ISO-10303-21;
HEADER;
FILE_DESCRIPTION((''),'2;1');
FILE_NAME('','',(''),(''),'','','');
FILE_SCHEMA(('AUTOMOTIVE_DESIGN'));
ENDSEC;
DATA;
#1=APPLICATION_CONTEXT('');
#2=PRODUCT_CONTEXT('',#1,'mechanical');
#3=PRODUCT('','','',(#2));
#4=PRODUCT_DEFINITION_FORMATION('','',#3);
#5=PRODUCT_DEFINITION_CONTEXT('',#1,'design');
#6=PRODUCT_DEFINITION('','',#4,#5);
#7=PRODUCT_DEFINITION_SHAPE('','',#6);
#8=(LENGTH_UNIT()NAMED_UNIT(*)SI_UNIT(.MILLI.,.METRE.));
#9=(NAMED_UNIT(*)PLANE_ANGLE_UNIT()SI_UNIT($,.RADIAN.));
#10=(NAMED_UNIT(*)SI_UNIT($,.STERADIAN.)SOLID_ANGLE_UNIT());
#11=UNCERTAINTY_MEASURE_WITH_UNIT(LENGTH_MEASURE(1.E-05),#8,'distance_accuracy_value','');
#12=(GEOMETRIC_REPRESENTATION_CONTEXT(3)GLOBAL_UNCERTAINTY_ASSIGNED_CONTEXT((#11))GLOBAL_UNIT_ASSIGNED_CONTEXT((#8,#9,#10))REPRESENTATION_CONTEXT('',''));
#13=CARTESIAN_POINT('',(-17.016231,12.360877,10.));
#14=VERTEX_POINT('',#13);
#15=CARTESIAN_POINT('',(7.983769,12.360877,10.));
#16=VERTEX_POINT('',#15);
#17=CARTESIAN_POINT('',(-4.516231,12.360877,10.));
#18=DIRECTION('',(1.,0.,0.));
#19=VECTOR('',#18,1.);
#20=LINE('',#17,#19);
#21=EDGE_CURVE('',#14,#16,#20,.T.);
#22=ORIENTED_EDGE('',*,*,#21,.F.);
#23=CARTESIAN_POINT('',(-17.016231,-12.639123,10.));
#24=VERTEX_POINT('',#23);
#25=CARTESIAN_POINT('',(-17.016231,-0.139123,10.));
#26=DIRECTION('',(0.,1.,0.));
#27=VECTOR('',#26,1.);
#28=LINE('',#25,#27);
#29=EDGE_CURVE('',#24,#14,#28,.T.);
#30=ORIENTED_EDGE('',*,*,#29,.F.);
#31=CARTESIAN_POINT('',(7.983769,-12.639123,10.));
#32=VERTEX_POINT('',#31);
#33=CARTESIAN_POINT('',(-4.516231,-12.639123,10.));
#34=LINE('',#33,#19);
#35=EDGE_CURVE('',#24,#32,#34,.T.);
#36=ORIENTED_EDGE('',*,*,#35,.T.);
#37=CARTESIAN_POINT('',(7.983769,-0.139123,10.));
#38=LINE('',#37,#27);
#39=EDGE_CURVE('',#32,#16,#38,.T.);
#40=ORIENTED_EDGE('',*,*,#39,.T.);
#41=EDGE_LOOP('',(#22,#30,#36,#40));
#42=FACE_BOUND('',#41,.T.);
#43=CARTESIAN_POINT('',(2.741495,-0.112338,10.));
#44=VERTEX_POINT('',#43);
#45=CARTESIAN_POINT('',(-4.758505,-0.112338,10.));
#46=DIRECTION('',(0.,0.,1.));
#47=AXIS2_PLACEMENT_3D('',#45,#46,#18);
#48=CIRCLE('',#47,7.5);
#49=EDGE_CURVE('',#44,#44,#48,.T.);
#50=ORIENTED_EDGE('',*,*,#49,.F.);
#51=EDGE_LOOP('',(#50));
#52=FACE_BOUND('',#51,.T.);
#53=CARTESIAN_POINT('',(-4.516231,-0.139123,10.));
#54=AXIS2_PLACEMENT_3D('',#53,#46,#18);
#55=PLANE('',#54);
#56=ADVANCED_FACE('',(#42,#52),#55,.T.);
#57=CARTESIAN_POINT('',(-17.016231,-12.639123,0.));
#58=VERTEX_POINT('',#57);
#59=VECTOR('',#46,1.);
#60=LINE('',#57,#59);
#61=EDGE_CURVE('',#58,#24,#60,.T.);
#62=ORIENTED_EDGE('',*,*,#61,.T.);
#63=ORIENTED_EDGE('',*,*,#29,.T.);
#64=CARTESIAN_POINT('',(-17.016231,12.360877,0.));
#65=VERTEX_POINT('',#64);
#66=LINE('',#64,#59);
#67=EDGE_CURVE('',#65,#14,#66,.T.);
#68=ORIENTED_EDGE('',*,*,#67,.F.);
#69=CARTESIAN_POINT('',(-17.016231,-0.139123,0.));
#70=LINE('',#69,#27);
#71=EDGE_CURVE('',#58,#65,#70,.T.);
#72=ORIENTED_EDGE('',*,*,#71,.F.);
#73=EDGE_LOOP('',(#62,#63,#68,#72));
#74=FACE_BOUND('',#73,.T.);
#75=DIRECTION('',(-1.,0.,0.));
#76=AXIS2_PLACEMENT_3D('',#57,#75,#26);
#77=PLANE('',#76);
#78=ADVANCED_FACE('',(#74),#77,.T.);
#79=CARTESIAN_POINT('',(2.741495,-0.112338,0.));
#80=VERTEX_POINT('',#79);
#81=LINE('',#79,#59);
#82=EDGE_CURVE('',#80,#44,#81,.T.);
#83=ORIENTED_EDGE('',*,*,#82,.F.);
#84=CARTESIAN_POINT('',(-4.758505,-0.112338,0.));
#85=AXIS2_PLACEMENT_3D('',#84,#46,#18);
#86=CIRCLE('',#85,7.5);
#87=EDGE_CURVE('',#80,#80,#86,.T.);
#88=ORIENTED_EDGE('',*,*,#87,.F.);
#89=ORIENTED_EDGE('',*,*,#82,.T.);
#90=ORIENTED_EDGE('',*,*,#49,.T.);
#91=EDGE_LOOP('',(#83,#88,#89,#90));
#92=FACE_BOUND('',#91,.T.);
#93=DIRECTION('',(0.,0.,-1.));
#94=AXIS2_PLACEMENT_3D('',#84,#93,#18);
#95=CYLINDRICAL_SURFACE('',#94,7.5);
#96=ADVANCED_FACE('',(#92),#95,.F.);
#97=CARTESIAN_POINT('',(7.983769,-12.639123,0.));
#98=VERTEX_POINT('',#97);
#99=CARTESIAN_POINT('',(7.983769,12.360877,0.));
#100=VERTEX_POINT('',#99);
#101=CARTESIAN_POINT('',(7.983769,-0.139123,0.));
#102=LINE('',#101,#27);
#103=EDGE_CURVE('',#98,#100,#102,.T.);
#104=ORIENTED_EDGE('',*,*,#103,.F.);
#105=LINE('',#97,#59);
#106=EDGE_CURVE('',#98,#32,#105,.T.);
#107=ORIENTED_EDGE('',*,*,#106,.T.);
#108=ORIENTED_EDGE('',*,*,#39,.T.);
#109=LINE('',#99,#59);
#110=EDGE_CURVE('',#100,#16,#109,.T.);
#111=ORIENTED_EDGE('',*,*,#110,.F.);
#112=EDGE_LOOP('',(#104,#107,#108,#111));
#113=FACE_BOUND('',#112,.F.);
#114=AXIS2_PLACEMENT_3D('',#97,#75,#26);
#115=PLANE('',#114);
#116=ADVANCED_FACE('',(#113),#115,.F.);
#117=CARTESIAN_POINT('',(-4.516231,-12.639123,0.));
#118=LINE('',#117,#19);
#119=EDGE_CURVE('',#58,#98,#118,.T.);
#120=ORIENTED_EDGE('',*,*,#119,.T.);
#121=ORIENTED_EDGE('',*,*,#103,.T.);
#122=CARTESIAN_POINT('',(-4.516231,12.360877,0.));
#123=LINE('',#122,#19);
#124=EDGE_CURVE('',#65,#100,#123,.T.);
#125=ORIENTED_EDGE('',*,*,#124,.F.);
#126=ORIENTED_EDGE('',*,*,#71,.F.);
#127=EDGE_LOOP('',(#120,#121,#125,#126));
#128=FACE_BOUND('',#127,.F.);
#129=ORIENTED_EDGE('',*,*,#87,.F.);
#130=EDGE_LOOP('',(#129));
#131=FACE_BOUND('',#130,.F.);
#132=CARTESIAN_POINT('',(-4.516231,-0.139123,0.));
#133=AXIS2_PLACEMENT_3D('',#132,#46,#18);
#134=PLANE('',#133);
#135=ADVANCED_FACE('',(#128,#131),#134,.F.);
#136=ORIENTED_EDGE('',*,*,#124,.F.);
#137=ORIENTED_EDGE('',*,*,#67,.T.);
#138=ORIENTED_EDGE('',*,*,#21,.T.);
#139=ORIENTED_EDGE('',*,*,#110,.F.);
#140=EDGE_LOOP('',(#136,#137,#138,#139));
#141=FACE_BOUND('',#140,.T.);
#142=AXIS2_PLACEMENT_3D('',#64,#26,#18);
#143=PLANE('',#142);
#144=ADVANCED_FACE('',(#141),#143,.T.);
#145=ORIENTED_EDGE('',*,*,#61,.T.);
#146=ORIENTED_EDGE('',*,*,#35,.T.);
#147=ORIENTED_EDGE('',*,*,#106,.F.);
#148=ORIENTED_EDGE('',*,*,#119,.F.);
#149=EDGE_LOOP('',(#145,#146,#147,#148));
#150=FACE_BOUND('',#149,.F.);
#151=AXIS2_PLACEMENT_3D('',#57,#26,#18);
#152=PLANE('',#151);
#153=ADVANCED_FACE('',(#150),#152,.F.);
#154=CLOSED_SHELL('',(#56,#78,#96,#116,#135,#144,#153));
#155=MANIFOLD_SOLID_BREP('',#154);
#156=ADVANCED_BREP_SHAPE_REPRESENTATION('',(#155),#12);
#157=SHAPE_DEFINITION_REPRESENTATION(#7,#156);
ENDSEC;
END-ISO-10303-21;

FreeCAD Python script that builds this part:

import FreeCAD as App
import Part
import Sketcher

V = App.Vector
Q = App.Units.Quantity

doc = App.newDocument("Part")
params = doc.addObject("Spreadsheet::Sheet", "Params")
for row, (alias, value) in enumerate([
    ("sketch1_diameter", "15 mm"),
    ("sketch1_width", "25 mm"),
    ("pad1_length", "10 mm"),
], start=1):
    params.set(f"A{row}", alias)
    params.set(f"B{row}", "=" + value)
    params.setAlias(f"B{row}", alias)

body = doc.addObject("PartDesign::Body", "Body")

sketch1 = doc.addObject("Sketcher::SketchObject", "Sketch")
body.addObject(sketch1)
sketch1.AttachmentSupport = (doc.XY_Plane, [""])
sketch1.MapMode = "FlatFace"
sketch1.addGeometry([
    Part.LineSegment(V(-17.016231, 12.360877, 0), V(-17.016231, -12.639123, 0)),
    Part.LineSegment(V(-17.016231, -12.639123, 0), V(7.983769, -12.639123, 0)),
    Part.LineSegment(V(7.983769, -12.639123, 0), V(7.983769, 12.360877, 0)),
    Part.LineSegment(V(7.983769, 12.360877, 0), V(-17.016231, 12.360877, 0)),
    Part.Circle(V(-4.758505, -0.112338, 0), V(0, 0, 1), 7.5),
], False)
sketch1.addConstraint([
    Sketcher.Constraint("Coincident", 0, 2, 1, 1),
    Sketcher.Constraint("Coincident", 1, 2, 2, 1),
    Sketcher.Constraint("Coincident", 2, 2, 3, 1),
    Sketcher.Constraint("Coincident", 3, 2, 0, 1),
    Sketcher.Constraint("Vertical", 0),
    Sketcher.Constraint("Horizontal", 1),
    Sketcher.Constraint("Vertical", 2),
    Sketcher.Constraint("Horizontal", 3),
    Sketcher.Constraint("Equal", 3, 0),
    Sketcher.Constraint("Diameter", 4, Q("15 mm")),
    Sketcher.Constraint("DistanceX", 1, 1, 1, 2, Q("25 mm")),
    Sketcher.Constraint("DistanceX", 0, 2, -1, 1, Q("17.016231 mm")),
    Sketcher.Constraint("DistanceX", 4, 3, -1, 1, Q("4.758505 mm")),
    Sketcher.Constraint("DistanceY", 4, 3, -1, 1, Q("0.112338 mm")),
    Sketcher.Constraint("DistanceY", 0, 2, -1, 1, Q("12.639123 mm")),
])
sketch1.setExpression("Constraints[9]", "Params.sketch1_diameter")
sketch1.setExpression("Constraints[10]", "Params.sketch1_width")
pad1 = doc.addObject("PartDesign::Pad", "Pad")
body.addObject(pad1)
pad1.Profile = sketch1
pad1.setExpression("Length", "Params.pad1_length")

doc.recompute()
